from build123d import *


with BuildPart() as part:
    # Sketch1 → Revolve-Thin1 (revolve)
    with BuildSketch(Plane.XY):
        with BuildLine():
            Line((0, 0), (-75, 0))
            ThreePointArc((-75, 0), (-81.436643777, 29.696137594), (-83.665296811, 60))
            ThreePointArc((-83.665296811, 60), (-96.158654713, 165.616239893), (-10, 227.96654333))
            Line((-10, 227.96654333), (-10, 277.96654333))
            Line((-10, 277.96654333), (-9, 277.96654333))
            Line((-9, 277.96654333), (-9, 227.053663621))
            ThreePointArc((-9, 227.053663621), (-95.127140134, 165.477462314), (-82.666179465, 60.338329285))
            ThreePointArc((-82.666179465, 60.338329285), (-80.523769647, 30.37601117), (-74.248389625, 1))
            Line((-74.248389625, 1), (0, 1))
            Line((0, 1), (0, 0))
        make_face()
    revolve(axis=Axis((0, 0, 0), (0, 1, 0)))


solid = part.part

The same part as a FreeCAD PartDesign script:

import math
import FreeCAD as App
import Part
import Sketcher

V = App.Vector

doc = App.newDocument("Part")
body = doc.addObject("PartDesign::Body", "Body")

# Sketch on XY plane
sketch1 = body.newObject("Sketcher::SketchObject", "Sketch")
sketch1.AttachmentSupport = (doc.getObject("XY_Plane"), [""])
sketch1.MapMode = "FlatFace"
sketch1.addGeometry([
    Part.LineSegment(V(-75, 0, 0), V(0, 0, 0)),  # 0
    Part.LineSegment(V(0, 0, 0), V(0, 1, 0)),  # 1
    Part.LineSegment(V(0, 1, 0), V(-74.24839, 1, 0)),  # 2
    Part.ArcOfCircle(Part.Circle(V(133.494152, 60.73679, 0), V(0, 0, 1), 216.160698), math.radians(-179.894384), math.radians(-163.957303)),  # 3
    Part.ArcOfCircle(Part.Circle(V(0, 123.443819, 0), V(0, 0, 1), 104), math.radians(94.964498), math.radians(217.357294)),  # 4
    Part.LineSegment(V(-9, 227.053664, 0), V(-9, 277.966543, 0)),  # 5
    Part.LineSegment(V(-9, 277.966543, 0), V(-10, 277.966543, 0)),  # 6
    Part.LineSegment(V(-10, 277.966543, 0), V(-10, 227.966543, 0)),  # 7
    Part.ArcOfCircle(Part.Circle(V(0, 123.443819, 0), V(0, 0, 1), 105), math.radians(95.465024), math.radians(217.173227)),  # 8
    Part.ArcOfCircle(Part.Circle(V(133.494151, 60.73679, 0), V(0, 0, 1), 217.160698), math.radians(-179.805605), math.radians(-163.75854)),  # 9
], False)
sketch1.addConstraint([
    Sketcher.Constraint("Coincident", 0, 2, 1, 1),
    Sketcher.Constraint("Coincident", 1, 2, 2, 1),
    Sketcher.Constraint("Coincident", 2, 2, 3, 2),
    Sketcher.Constraint("Coincident", 3, 1, 4, 2),
    Sketcher.Constraint("Coincident", 4, 1, 5, 1),
    Sketcher.Constraint("Coincident", 5, 2, 6, 1),
    Sketcher.Constraint("Coincident", 6, 2, 7, 1),
    Sketcher.Constraint("Coincident", 7, 2, 8, 1),
    Sketcher.Constraint("Coincident", 8, 2, 9, 1),
    Sketcher.Constraint("Coincident", 9, 2, 0, 1),
    Sketcher.Constraint("Horizontal", 0),
    Sketcher.Constraint("Vertical", 1),
    Sketcher.Constraint("Horizontal", 2),
    Sketcher.Constraint("Vertical", 5),
    Sketcher.Constraint("Horizontal", 6),
    Sketcher.Constraint("Vertical", 7),
    Sketcher.Constraint("Coincident", 0, 2, -1, 1),
    Sketcher.Constraint("Coincident", 8, 3, 4, 3),
    Sketcher.Constraint("Coincident", 9, 3, 3, 3),
    Sketcher.Constraint("PointOnObject", 4, 3, -2),
    Sketcher.Constraint("Equal", 6, 1),
    Sketcher.Constraint("Radius", 4, 104.0),
    Sketcher.Constraint("Radius", 8, 105.0),
    Sketcher.Constraint("DistanceX", 0, 1, 0, 2, 75.0),
    Sketcher.Constraint("DistanceX", 6, 2, 6, 1, 1.0),
    Sketcher.Constraint("DistanceY", 7, 2, 7, 1, 50.0),
    Sketcher.Constraint("DistanceX", 4, 1, -1, 1, 9.0),
    Sketcher.Constraint("DistanceY", -1, 1, 8, 2, 60.0),
    Sketcher.Constraint("Radius", 3, 216.160698),
    Sketcher.Constraint("Radius", 9, 217.160698),
    Sketcher.Constraint("DistanceX", -1, 1, 3, 3, 133.494152),
])
revolution = body.newObject("PartDesign::Revolution", "Revolution")
revolution.Profile = sketch1
revolution.ReferenceAxis = (sketch1, ["V_Axis"])
revolution.Angle = 360

doc.recompute()
